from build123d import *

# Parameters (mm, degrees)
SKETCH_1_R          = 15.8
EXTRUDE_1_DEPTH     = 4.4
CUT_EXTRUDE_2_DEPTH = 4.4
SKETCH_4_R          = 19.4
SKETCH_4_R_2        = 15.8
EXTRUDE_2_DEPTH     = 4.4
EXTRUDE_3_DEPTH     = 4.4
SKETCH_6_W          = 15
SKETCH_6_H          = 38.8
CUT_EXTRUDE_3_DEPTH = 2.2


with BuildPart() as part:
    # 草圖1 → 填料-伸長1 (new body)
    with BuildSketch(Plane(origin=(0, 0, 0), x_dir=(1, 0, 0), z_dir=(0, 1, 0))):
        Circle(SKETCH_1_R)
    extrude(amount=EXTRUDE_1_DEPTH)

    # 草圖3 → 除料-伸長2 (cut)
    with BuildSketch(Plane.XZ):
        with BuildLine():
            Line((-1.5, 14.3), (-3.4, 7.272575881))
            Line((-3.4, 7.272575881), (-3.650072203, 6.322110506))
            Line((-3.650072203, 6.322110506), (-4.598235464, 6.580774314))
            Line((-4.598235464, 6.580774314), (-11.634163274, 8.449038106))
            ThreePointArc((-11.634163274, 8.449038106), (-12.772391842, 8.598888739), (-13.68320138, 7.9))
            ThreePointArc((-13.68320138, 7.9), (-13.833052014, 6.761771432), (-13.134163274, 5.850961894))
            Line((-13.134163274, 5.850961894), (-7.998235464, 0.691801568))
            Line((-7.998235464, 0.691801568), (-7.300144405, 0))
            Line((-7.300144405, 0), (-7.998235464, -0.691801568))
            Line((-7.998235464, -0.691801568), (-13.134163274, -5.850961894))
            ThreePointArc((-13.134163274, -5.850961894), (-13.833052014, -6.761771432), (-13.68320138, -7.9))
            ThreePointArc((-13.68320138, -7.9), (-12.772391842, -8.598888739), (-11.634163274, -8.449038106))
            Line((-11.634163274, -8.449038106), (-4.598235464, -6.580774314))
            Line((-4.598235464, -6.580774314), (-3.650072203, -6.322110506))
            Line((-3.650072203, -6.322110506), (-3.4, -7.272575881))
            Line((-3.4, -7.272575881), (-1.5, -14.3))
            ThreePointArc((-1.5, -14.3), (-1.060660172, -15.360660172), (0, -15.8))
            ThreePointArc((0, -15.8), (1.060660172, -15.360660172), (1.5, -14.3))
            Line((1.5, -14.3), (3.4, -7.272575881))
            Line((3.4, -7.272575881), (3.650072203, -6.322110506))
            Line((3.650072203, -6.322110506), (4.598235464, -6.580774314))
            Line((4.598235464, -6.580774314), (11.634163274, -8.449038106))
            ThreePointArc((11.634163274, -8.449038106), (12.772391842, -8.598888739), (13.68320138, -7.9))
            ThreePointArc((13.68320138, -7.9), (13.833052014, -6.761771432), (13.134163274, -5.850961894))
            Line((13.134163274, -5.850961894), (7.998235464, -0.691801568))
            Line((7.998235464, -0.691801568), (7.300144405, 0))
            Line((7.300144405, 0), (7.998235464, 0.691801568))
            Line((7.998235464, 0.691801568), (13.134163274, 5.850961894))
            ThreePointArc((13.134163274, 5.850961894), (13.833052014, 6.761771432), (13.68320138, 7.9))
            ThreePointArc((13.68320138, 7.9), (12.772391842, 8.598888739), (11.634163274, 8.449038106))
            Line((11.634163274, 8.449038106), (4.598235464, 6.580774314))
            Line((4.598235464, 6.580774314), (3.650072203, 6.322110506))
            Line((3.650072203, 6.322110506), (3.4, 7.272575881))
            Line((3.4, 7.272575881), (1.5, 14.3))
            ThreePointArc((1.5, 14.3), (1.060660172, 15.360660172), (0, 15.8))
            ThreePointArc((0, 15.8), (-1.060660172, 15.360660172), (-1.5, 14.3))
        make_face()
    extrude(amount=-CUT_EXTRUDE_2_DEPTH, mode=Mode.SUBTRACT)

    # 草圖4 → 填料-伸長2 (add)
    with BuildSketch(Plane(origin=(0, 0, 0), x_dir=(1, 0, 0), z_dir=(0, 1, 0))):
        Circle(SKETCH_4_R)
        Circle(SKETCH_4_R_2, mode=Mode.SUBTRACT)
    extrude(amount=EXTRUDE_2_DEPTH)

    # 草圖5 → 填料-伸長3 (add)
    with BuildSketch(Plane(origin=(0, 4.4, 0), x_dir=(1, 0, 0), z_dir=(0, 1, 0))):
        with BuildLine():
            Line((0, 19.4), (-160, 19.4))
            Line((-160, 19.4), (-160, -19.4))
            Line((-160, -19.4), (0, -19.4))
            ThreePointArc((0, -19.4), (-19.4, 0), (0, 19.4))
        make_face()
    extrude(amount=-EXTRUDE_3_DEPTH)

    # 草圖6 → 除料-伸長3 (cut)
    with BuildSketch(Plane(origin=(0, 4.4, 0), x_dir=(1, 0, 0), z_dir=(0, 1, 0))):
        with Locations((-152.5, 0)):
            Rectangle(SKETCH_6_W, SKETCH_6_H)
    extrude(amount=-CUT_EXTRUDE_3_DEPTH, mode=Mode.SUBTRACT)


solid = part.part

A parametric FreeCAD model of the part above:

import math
import FreeCAD as App
import Part
import Sketcher


def add_polygon(sketch, points):
    """Adds a closed chain of lines whose ends are joined by coincident constraints."""
    first, n = sketch.GeometryCount, len(points)
    for a, b in zip(points, points[1:] + points[:1]):
        sketch.addGeometry(Part.LineSegment(App.Vector(*a, 0), App.Vector(*b, 0)), False)
    for i in range(n):
        sketch.addConstraint(Sketcher.Constraint("Coincident", first + i, 2, first + (i + 1) % n, 1))

doc = App.newDocument("Part")
body = doc.addObject("PartDesign::Body", "Body")
body.AllowCompound = True

# Sketch on XZ plane
sketch1 = body.newObject("Sketcher::SketchObject", "Sketch")
sketch1.AttachmentSupport = (doc.getObject("XZ_Plane"), [""])
sketch1.MapMode = "FlatFace"
sketch1.addGeometry(Part.Circle(App.Vector(0, 0, 0), App.Vector(0, 0, 1), 15.8), False)
sketch1.addConstraint(Sketcher.Constraint("Coincident", 0, 3, -1, 1))
sketch1.addConstraint(Sketcher.Constraint("Diameter", 0, 31.6))
pad1 = body.newObject("PartDesign::Pad", "Pad")
pad1.Profile = sketch1
pad1.Length = 4.4
pad1.Reversed = True

# Sketch on XZ plane
sketch2 = body.newObject("Sketcher::SketchObject", "Sketch001")
sketch2.AttachmentSupport = (doc.getObject("XZ_Plane"), [""])
sketch2.MapMode = "FlatFace"
sketch2.addGeometry(Part.LineSegment(App.Vector(-1.5, 14.3, 0), App.Vector(-3.4, 7.272576, 0)), False)
sketch2.addGeometry(Part.LineSegment(App.Vector(-3.4, 7.272576, 0), App.Vector(-3.650072, 6.322111, 0)), False)
sketch2.addGeometry(Part.LineSegment(App.Vector(-3.650072, 6.322111, 0), App.Vector(-4.598235, 6.580774, 0)), False)
sketch2.addGeometry(Part.LineSegment(App.Vector(-4.598235, 6.580774, 0), App.Vector(-11.634163, 8.449038, 0)), False)
sketch2.addGeometry(Part.ArcOfCircle(Part.Circle(App.Vector(-12.384163, 7.15, 0), App.Vector(0, 0, 1), 1.5), math.radians(60), math.radians(150)), False)
sketch2.addGeometry(Part.ArcOfCircle(Part.Circle(App.Vector(-12.384163, 7.15, 0), App.Vector(0, 0, 1), 1.5), math.radians(150), math.radians(240)), False)
sketch2.addGeometry(Part.LineSegment(App.Vector(-13.134163, 5.850962, 0), App.Vector(-7.998235, 0.691802, 0)), False)
sketch2.addGeometry(Part.LineSegment(App.Vector(-7.998235, 0.691802, 0), App.Vector(-7.300144, 0, 0)), False)
sketch2.addGeometry(Part.LineSegment(App.Vector(-7.300144, 0, 0), App.Vector(-7.998235, -0.691802, 0)), False)
sketch2.addGeometry(Part.LineSegment(App.Vector(-7.998235, -0.691802, 0), App.Vector(-13.134163, -5.850962, 0)), False)
sketch2.addGeometry(Part.ArcOfCircle(Part.Circle(App.Vector(-12.384163, -7.15, 0), App.Vector(0, 0, 1), 1.5), math.radians(120), math.radians(210)), False)
sketch2.addGeometry(Part.ArcOfCircle(Part.Circle(App.Vector(-12.384163, -7.15, 0), App.Vector(0, 0, 1), 1.5), math.radians(-150), math.radians(-60)), False)
sketch2.addGeometry(Part.LineSegment(App.Vector(-11.634163, -8.449038, 0), App.Vector(-4.598235, -6.580774, 0)), False)
sketch2.addGeometry(Part.LineSegment(App.Vector(-4.598235, -6.580774, 0), App.Vector(-3.650072, -6.322111, 0)), False)
sketch2.addGeometry(Part.LineSegment(App.Vector(-3.650072, -6.322111, 0), App.Vector(-3.4, -7.272576, 0)), False)
sketch2.addGeometry(Part.LineSegment(App.Vector(-3.4, -7.272576, 0), App.Vector(-1.5, -14.3, 0)), False)
sketch2.addGeometry(Part.ArcOfCircle(Part.Circle(App.Vector(0, -14.3, 0), App.Vector(0, 0, 1), 1.5), math.radians(180), math.radians(270)), False)
sketch2.addGeometry(Part.ArcOfCircle(Part.Circle(App.Vector(0, -14.3, 0), App.Vector(0, 0, 1), 1.5), math.radians(-90), math.radians(0)), False)
sketch2.addGeometry(Part.LineSegment(App.Vector(1.5, -14.3, 0), App.Vector(3.4, -7.272576, 0)), False)
sketch2.addGeometry(Part.LineSegment(App.Vector(3.4, -7.272576, 0), App.Vector(3.650072, -6.322111, 0)), False)
sketch2.addGeometry(Part.LineSegment(App.Vector(3.650072, -6.322111, 0), App.Vector(4.598235, -6.580774, 0)), False)
sketch2.addGeometry(Part.LineSegment(App.Vector(4.598235, -6.580774, 0), App.Vector(11.634163, -8.449038, 0)), False)
sketch2.addGeometry(Part.ArcOfCircle(Part.Circle(App.Vector(12.384163, -7.15, 0), App.Vector(0, 0, 1), 1.5), math.radians(-120), math.radians(-30)), False)
sketch2.addGeometry(Part.ArcOfCircle(Part.Circle(App.Vector(12.384163, -7.15, 0), App.Vector(0, 0, 1), 1.5), math.radians(-30), math.radians(60)), False)
sketch2.addGeometry(Part.LineSegment(App.Vector(13.134163, -5.850962, 0), App.Vector(7.998235, -0.691802, 0)), False)
sketch2.addGeometry(Part.LineSegment(App.Vector(7.998235, -0.691802, 0), App.Vector(7.300144, 0, 0)), False)
sketch2.addGeometry(Part.LineSegment(App.Vector(7.300144, 0, 0), App.Vector(7.998235, 0.691802, 0)), False)
sketch2.addGeometry(Part.LineSegment(App.Vector(7.998235, 0.691802, 0), App.Vector(13.134163, 5.850962, 0)), False)
sketch2.addGeometry(Part.ArcOfCircle(Part.Circle(App.Vector(12.384163, 7.15, 0), App.Vector(0, 0, 1), 1.5), math.radians(-60), math.radians(30)), False)
sketch2.addGeometry(Part.ArcOfCircle(Part.Circle(App.Vector(12.384163, 7.15, 0), App.Vector(0, 0, 1), 1.5), math.radians(30), math.radians(120)), False)
sketch2.addGeometry(Part.LineSegment(App.Vector(11.634163, 8.449038, 0), App.Vector(4.598235, 6.580774, 0)), False)
sketch2.addGeometry(Part.LineSegment(App.Vector(4.598235, 6.580774, 0), App.Vector(3.650072, 6.322111, 0)), False)
sketch2.addGeometry(Part.LineSegment(App.Vector(3.650072, 6.322111, 0), App.Vector(3.4, 7.272576, 0)), False)
sketch2.addGeometry(Part.LineSegment(App.Vector(3.4, 7.272576, 0), App.Vector(1.5, 14.3, 0)), False)
sketch2.addGeometry(Part.ArcOfCircle(Part.Circle(App.Vector(0, 14.3, 0), App.Vector(0, 0, 1), 1.5), math.radians(0), math.radians(90)), False)
sketch2.addGeometry(Part.ArcOfCircle(Part.Circle(App.Vector(0, 14.3, 0), App.Vector(0, 0, 1), 1.5), math.radians(90), math.radians(180)), False)
sketch2.addConstraint(Sketcher.Constraint("Coincident", 0, 2, 1, 1))
sketch2.addConstraint(Sketcher.Constraint("Coincident", 1, 2, 2, 1))
sketch2.addConstraint(Sketcher.Constraint("Coincident", 2, 2, 3, 1))
sketch2.addConstraint(Sketcher.Constraint("Coincident", 3, 2, 4, 1))
sketch2.addConstraint(Sketcher.Constraint("Tangent", 4, 2, 5, 1))
sketch2.addConstraint(Sketcher.Constraint("Coincident", 5, 2, 6, 1))
sketch2.addConstraint(Sketcher.Constraint("Coincident", 6, 2, 7, 1))
sketch2.addConstraint(Sketcher.Constraint("Coincident", 7, 2, 8, 1))
sketch2.addConstraint(Sketcher.Constraint("Coincident", 8, 2, 9, 1))
sketch2.addConstraint(Sketcher.Constraint("Coincident", 9, 2, 10, 1))
sketch2.addConstraint(Sketcher.Constraint("Tangent", 10, 2, 11, 1))
sketch2.addConstraint(Sketcher.Constraint("Coincident", 11, 2, 12, 1))
sketch2.addConstraint(Sketcher.Constraint("Coincident", 12, 2, 13, 1))
sketch2.addConstraint(Sketcher.Constraint("Coincident", 13, 2, 14, 1))
sketch2.addConstraint(Sketcher.Constraint("Coincident", 14, 2, 15, 1))
sketch2.addConstraint(Sketcher.Constraint("Coincident", 15, 2, 16, 1))
sketch2.addConstraint(Sketcher.Constraint("Tangent", 16, 2, 17, 1))
sketch2.addConstraint(Sketcher.Constraint("Coincident", 17, 2, 18, 1))
sketch2.addConstraint(Sketcher.Constraint("Coincident", 18, 2, 19, 1))
sketch2.addConstraint(Sketcher.Constraint("Coincident", 19, 2, 20, 1))
sketch2.addConstraint(Sketcher.Constraint("Coincident", 20, 2, 21, 1))
sketch2.addConstraint(Sketcher.Constraint("Coincident", 21, 2, 22, 1))
sketch2.addConstraint(Sketcher.Constraint("Tangent", 22, 2, 23, 1))
sketch2.addConstraint(Sketcher.Constraint("Coincident", 23, 2, 24, 1))
sketch2.addConstraint(Sketcher.Constraint("Coincident", 24, 2, 25, 1))
sketch2.addConstraint(Sketcher.Constraint("Coincident", 25, 2, 26, 1))
sketch2.addConstraint(Sketcher.Constraint("Coincident", 26, 2, 27, 1))
sketch2.addConstraint(Sketcher.Constraint("Coincident", 27, 2, 28, 1))
sketch2.addConstraint(Sketcher.Constraint("Tangent", 28, 2, 29, 1))
sketch2.addConstraint(Sketcher.Constraint("Coincident", 29, 2, 30, 1))
sketch2.addConstraint(Sketcher.Constraint("Coincident", 30, 2, 31, 1))
sketch2.addConstraint(Sketcher.Constraint("Coincident", 31, 2, 32, 1))
sketch2.addConstraint(Sketcher.Constraint("Coincident", 32, 2, 33, 1))
sketch2.addConstraint(Sketcher.Constraint("Coincident", 33, 2, 34, 1))
sketch2.addConstraint(Sketcher.Constraint("Tangent", 34, 2, 35, 1))
sketch2.addConstraint(Sketcher.Constraint("Coincident", 35, 2, 0, 1))
sketch2.addConstraint(Sketcher.Constraint("Equal", 4, 5))
sketch2.addConstraint(Sketcher.Constraint("Equal", 5, 10))
sketch2.addConstraint(Sketcher.Constraint("Equal", 10, 11))
sketch2.addConstraint(Sketcher.Constraint("Equal", 11, 16))
sketch2.addConstraint(Sketcher.Constraint("Equal", 16, 17))
sketch2.addConstraint(Sketcher.Constraint("Equal", 17, 22))
sketch2.addConstraint(Sketcher.Constraint("Equal", 22, 23))
sketch2.addConstraint(Sketcher.Constraint("Equal", 23, 28))
sketch2.addConstraint(Sketcher.Constraint("Equal", 28, 29))
sketch2.addConstraint(Sketcher.Constraint("Equal", 29, 34))
sketch2.addConstraint(Sketcher.Constraint("Equal", 34, 35))
sketch2.addConstraint(Sketcher.Constraint("Symmetric", 4, 3, 22, 3, -1, 1))
sketch2.addConstraint(Sketcher.Constraint("Symmetric", 10, 3, 28, 3, -1, 1))
sketch2.addConstraint(Sketcher.Constraint("Symmetric", 16, 3, 34, 3, -1, 1))
sketch2.addConstraint(Sketcher.Constraint("Symmetric", 0, 2, 18, 2, -1, 1))
sketch2.addConstraint(Sketcher.Constraint("Symmetric", 1, 2, 19, 2, -1, 1))
sketch2.addConstraint(Sketcher.Constraint("Symmetric", 2, 2, 20, 2, -1, 1))
sketch2.addConstraint(Sketcher.Constraint("Symmetric", 6, 2, 24, 2, -1, 1))
sketch2.addConstraint(Sketcher.Constraint("Symmetric", 7, 2, 25, 2, -1, 1))
sketch2.addConstraint(Sketcher.Constraint("Symmetric", 8, 2, 26, 2, -1, 1))
sketch2.addConstraint(Sketcher.Constraint("Symmetric", 12, 2, 30, 2, -1, 1))
sketch2.addConstraint(Sketcher.Constraint("Symmetric", 13, 2, 31, 2, -1, 1))
sketch2.addConstraint(Sketcher.Constraint("Symmetric", 14, 2, 32, 2, -1, 1))
sketch2.addConstraint(Sketcher.Constraint("Symmetric", 10, 3, 22, 3, -2))
sketch2.addConstraint(Sketcher.Constraint("Symmetric", 15, 2, 17, 2, -2))
sketch2.addConstraint(Sketcher.Constraint("Symmetric", 14, 2, 18, 2, -2))
sketch2.addConstraint(Sketcher.Constraint("Symmetric", 13, 2, 19, 2, -2))
sketch2.addConstraint(Sketcher.Constraint("Symmetric", 12, 2, 20, 2, -2))
sketch2.addConstraint(Sketcher.Constraint("Symmetric", 8, 2, 24, 2, -2))
sketch2.addConstraint(Sketcher.Constraint("PointOnObject", 7, 2, -1))
sketch2.addConstraint(Sketcher.Constraint("PointOnObject", 16, 2, -2))
sketch2.addConstraint(Sketcher.Constraint("PointOnObject", 34, 2, -2))
sketch2.addConstraint(Sketcher.Constraint("Parallel", 0, 18))
sketch2.addConstraint(Sketcher.Constraint("Parallel", 3, 21))
sketch2.addConstraint(Sketcher.Constraint("Parallel", 6, 24))
sketch2.addConstraint(Sketcher.Constraint("Parallel", 9, 27))
sketch2.addConstraint(Sketcher.Constraint("Parallel", 12, 30))
sketch2.addConstraint(Sketcher.Constraint("Parallel", 15, 33))
sketch2.addConstraint(Sketcher.Constraint("Horizontal", 17, 3, 15, 2))
sketch2.addConstraint(Sketcher.Constraint("Horizontal", 11, 2, 21, 2))
sketch2.addConstraint(Sketcher.Constraint("Horizontal", 10, 2, 22, 2))
sketch2.addConstraint(Sketcher.Constraint("Horizontal", 9, 2, 23, 2))
sketch2.addConstraint(Sketcher.Constraint("Horizontal", 4, 2, 28, 2))
sketch2.addConstraint(Sketcher.Constraint("Vertical", 4, 2, 10, 2))
sketch2.addConstraint(Sketcher.Constraint("Equal", 1, 2))
sketch2.addConstraint(Sketcher.Constraint("Equal", 0, 3))
sketch2.addConstraint(Sketcher.Constraint("Equal", 3, 6))
sketch2.addConstraint(Sketcher.Constraint("Equal", 2, 7))
sketch2.addConstraint(Sketcher.Constraint("Radius", 4, 1.5))
sketch2.addConstraint(Sketcher.Constraint("DistanceY", 16, 3, -1, 1, 14.3))
sketch2.addConstraint(Sketcher.Constraint("DistanceX", 0, 2, -1, 1, 3.4))
sketch2.addConstraint(Sketcher.Constraint("DistanceY", -1, 1, 4, 2, 7.9))
sketch2.addConstraint(Sketcher.Constraint("DistanceY", 10, 3, 4, 3, 14.3))
sketch2.addConstraint(Sketcher.Constraint("DistanceX", 5, 2, 3, 2, 1.5))
sketch2.addConstraint(Sketcher.Constraint("DistanceX", 6, 2, 2, 2, 3.4))
sketch2.addConstraint(Sketcher.Constraint("DistanceX", 5, 3, 3, 2, 0.75))
sketch2.addConstraint(Sketcher.Constraint("DistanceX", 4, 2, -1, 1, 13.683201))
sketch2.addConstraint(Sketcher.Constraint("DistanceY", -1, 1, 6, 2, 0.691802))
sketch2.addConstraint(Sketcher.Constraint("DistanceY", 2, 2, 0, 2, 0.691802))
sketch2.addConstraint(Sketcher.Constraint("DistanceY", -1, 1, 1, 2, 6.322111))
pocket1 = body.newObject("PartDesign::Pocket", "Pocket")
pocket1.Profile = sketch2
pocket1.Length = 4.4

# Sketch on XZ plane
sketch3 = body.newObject("Sketcher::SketchObject", "Sketch002")
sketch3.AttachmentSupport = (doc.getObject("XZ_Plane"), [""])
sketch3.MapMode = "FlatFace"
sketch3.addGeometry(Part.Circle(App.Vector(0, 0, 0), App.Vector(0, 0, 1), 19.4), False)
sketch3.addGeometry(Part.Circle(App.Vector(0, 0, 0), App.Vector(0, 0, 1), 15.8), False)
sketch3.addConstraint(Sketcher.Constraint("Coincident", 0, 3, -1, 1))
sketch3.addConstraint(Sketcher.Constraint("Coincident", 1, 3, -1, 1))
sketch3.addConstraint(Sketcher.Constraint("Diameter", 0, 38.8))
sketch3.addConstraint(Sketcher.Constraint("Diameter", 1, 31.6))
pad2 = body.newObject("PartDesign::Pad", "Pad001")
pad2.Profile = sketch3
pad2.Length = 4.4
pad2.Reversed = True

# Sketch on XZ plane
sketch4 = body.newObject("Sketcher::SketchObject", "Sketch003")
sketch4.AttachmentSupport = (doc.getObject("XZ_Plane"), [""])
sketch4.MapMode = "FlatFace"
sketch4.AttachmentOffset = App.Placement(App.Vector(0, 0, -4.4), App.Rotation())
sketch4.addGeometry(Part.LineSegment(App.Vector(0, -19.4, 0), App.Vector(-160, -19.4, 0)), False)
sketch4.addGeometry(Part.LineSegment(App.Vector(-160, -19.4, 0), App.Vector(-160, 19.4, 0)), False)
sketch4.addGeometry(Part.LineSegment(App.Vector(-160, 19.4, 0), App.Vector(0, 19.4, 0)), False)
sketch4.addGeometry(Part.ArcOfCircle(Part.Circle(App.Vector(0, 0, 0), App.Vector(0, 0, 1), 19.4), math.radians(90), math.radians(270)), False)
sketch4.addConstraint(Sketcher.Constraint("Coincident", 0, 2, 1, 1))
sketch4.addConstraint(Sketcher.Constraint("Coincident", 1, 2, 2, 1))
sketch4.addConstraint(Sketcher.Constraint("Tangent", 2, 2, 3, 1))
sketch4.addConstraint(Sketcher.Constraint("Tangent", 3, 2, 0, 1))
sketch4.addConstraint(Sketcher.Constraint("Horizontal", 0))
sketch4.addConstraint(Sketcher.Constraint("Vertical", 1))
sketch4.addConstraint(Sketcher.Constraint("Horizontal", 2))
sketch4.addConstraint(Sketcher.Constraint("Coincident", 3, 3, -1, 1))
sketch4.addConstraint(Sketcher.Constraint("Radius", 3, 19.4))
sketch4.addConstraint(Sketcher.Constraint("DistanceX", 0, 2, 0, 1, 160.0))
pad3 = body.newObject("PartDesign::Pad", "Pad002")
pad3.Profile = sketch4
pad3.Length = 4.4

# Sketch on XZ plane
sketch5 = body.newObject("Sketcher::SketchObject", "Sketch004")
sketch5.AttachmentSupport = (doc.getObject("XZ_Plane"), [""])
sketch5.MapMode = "FlatFace"
sketch5.AttachmentOffset = App.Placement(App.Vector(0, 0, -4.4), App.Rotation())
add_polygon(sketch5, [(-160, -19.4), (-160, 19.4), (-145, 19.4), (-145, -19.4)])  # lines 0-3
sketch5.addConstraint(Sketcher.Constraint("Vertical", 0))
sketch5.addConstraint(Sketcher.Constraint("Horizontal", 1))
sketch5.addConstraint(Sketcher.Constraint("Vertical", 2))
sketch5.addConstraint(Sketcher.Constraint("Horizontal", 3))
sketch5.addConstraint(Sketcher.Constraint("DistanceX", 1, 1, 1, 2, 15.0))
sketch5.addConstraint(Sketcher.Constraint("DistanceY", 0, 1, 0, 2, 38.8))
sketch5.addConstraint(Sketcher.Constraint("DistanceX", 0, 2, -1, 1, 160.0))
sketch5.addConstraint(Sketcher.Constraint("DistanceY", -1, 1, 0, 2, 19.4))
pocket2 = body.newObject("PartDesign::Pocket", "Pocket001")
pocket2.Profile = sketch5
pocket2.Length = 2.2
pocket2.Reversed = True

doc.recompute()
